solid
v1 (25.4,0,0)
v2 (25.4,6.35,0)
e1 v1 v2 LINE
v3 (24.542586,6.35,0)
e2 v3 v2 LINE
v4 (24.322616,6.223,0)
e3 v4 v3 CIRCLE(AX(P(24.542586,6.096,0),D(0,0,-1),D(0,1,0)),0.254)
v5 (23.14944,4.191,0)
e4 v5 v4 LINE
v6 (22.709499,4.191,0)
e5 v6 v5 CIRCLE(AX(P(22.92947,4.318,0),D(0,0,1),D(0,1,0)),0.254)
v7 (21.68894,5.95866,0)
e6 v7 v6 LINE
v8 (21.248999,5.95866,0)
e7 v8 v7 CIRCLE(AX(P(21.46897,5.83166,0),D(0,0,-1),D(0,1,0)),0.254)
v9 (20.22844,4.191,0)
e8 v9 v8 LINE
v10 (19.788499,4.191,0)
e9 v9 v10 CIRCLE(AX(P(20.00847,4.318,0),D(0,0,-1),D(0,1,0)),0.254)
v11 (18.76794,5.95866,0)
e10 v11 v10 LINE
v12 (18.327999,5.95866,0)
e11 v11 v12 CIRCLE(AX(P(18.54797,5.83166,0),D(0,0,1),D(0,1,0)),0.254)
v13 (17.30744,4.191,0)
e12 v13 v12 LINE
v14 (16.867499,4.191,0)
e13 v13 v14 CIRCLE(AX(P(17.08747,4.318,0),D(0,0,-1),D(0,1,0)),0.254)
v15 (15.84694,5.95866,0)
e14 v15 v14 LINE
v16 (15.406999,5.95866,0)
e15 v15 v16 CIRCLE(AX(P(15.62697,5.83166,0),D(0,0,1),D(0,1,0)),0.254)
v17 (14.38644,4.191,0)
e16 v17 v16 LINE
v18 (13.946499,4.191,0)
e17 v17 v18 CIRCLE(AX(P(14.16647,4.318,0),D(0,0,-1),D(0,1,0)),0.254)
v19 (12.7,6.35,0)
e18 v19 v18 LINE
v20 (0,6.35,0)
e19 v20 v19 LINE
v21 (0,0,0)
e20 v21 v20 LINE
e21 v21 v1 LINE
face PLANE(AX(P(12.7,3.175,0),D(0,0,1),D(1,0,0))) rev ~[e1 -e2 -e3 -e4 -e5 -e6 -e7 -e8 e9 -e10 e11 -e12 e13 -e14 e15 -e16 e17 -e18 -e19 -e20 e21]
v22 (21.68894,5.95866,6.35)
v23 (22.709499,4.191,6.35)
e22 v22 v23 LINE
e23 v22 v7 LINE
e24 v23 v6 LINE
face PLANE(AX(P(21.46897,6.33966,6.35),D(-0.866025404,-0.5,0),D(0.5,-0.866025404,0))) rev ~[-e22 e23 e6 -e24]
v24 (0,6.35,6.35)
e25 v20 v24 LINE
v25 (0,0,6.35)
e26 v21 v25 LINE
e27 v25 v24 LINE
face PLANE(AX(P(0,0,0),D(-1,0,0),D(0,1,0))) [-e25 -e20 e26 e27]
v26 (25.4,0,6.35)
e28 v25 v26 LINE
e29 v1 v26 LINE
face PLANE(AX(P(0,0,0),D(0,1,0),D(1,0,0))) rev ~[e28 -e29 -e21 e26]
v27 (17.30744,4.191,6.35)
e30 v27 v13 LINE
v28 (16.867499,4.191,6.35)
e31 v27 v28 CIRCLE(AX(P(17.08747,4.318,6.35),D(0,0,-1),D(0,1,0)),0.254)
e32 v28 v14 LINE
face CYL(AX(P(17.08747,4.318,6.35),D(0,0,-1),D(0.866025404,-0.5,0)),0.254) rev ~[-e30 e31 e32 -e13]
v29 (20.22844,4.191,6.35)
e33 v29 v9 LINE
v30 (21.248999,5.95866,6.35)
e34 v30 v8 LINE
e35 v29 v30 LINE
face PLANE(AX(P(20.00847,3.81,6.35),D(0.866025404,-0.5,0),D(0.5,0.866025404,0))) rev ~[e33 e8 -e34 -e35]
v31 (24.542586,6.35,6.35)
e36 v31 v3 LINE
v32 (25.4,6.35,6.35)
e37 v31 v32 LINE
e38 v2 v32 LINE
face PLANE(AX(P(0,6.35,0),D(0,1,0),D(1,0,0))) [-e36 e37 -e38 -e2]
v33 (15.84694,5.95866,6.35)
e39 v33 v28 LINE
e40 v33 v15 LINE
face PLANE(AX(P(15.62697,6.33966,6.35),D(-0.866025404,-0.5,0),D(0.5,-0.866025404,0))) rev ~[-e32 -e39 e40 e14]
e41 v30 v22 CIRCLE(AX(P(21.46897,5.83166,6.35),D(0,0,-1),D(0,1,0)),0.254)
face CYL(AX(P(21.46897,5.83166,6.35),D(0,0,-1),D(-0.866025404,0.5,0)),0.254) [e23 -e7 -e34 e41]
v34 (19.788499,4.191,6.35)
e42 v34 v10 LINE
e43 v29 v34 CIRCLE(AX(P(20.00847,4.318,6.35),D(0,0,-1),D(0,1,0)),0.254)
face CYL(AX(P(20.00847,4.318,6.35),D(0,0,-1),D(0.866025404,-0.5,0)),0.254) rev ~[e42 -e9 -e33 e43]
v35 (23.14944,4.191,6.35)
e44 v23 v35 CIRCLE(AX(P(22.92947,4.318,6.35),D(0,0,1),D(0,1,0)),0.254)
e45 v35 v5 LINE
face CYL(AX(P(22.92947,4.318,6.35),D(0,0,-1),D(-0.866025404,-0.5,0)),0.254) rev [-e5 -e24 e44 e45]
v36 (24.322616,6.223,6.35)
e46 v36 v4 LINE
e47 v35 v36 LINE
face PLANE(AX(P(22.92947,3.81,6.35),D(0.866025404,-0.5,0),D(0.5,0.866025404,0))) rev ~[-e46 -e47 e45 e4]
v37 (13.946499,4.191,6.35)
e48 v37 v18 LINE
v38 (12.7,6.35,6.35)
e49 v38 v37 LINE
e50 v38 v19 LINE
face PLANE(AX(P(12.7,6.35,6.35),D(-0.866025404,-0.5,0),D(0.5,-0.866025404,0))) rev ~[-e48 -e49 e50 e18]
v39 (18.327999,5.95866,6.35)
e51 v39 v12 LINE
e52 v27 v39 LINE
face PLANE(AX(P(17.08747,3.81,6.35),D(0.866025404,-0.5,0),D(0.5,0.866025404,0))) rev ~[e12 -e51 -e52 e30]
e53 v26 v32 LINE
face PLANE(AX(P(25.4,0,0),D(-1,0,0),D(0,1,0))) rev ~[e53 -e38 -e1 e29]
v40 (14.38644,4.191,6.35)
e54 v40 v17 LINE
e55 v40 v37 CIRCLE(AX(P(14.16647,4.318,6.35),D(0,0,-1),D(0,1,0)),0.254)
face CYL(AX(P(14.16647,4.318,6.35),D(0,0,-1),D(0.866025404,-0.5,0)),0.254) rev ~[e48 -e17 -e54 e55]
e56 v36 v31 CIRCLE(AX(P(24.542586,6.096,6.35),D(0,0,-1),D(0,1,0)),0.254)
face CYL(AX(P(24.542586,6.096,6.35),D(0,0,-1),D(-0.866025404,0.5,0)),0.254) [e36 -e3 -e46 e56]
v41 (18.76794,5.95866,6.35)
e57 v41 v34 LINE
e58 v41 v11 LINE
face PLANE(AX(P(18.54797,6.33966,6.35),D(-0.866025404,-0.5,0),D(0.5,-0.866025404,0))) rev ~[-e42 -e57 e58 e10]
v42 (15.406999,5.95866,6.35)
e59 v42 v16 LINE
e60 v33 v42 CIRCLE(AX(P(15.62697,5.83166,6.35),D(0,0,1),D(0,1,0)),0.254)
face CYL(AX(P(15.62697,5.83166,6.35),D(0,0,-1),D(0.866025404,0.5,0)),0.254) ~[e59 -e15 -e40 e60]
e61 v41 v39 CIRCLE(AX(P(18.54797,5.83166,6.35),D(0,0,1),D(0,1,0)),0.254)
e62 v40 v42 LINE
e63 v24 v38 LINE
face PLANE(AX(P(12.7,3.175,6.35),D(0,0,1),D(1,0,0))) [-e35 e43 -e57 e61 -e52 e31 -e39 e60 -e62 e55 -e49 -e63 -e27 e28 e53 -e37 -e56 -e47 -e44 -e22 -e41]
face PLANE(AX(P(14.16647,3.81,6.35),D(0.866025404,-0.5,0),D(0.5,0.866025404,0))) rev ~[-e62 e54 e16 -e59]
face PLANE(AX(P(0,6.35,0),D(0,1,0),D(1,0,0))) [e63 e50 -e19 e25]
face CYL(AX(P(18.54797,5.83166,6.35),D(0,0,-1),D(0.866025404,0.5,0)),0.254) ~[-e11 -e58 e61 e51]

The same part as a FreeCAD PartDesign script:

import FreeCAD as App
import Part
import Sketcher
from FreeCAD import Vector
Q = App.Units.Quantity


def edges_at(feature, points):
    """Names of the edges that pass closest to the given points."""
    edges = feature.Shape.Edges
    near = lambda p: min(range(len(edges)), key=lambda i: edges[i].distToShape(Part.Vertex(*p))[0])
    return sorted({f"Edge{near(p) + 1}" for p in points})


def add_polygon(sketch, points):
    """Adds a closed chain of lines whose ends are joined by coincident constraints."""
    first, n = sketch.GeometryCount, len(points)
    for a, b in zip(points, points[1:] + points[:1]):
        sketch.addGeometry(Part.LineSegment(App.Vector(*a, 0), App.Vector(*b, 0)), False)
    for i in range(n):
        sketch.addConstraint(Sketcher.Constraint("Coincident", first + i, 2, first + (i + 1) % n, 1))

doc = App.newDocument("Part")
params = doc.addObject("Spreadsheet::Sheet", "Params")
for row, (alias, value) in enumerate([
    ("sketch1_width", "1 in"),
    ("sketch1_height", "0.25 in"),
    ("pad1_length", "0.25 in"),
    ("pocket1_length", "1 in"),
    ("fillet_radius", "0.01 in"),
    ("fillet2_radius", "0.01 in"),
], start=1):
    params.set(f"A{row}", alias)
    params.set(f"B{row}", "=" + value)
    params.setAlias(f"B{row}", alias)

body = doc.addObject("PartDesign::Body", "Body")

sketch1 = body.newObject("Sketcher::SketchObject", "Sketch")
sketch1.AttachmentSupport = (doc.getObject("XY_Plane"), [""])
sketch1.MapMode = "FlatFace"
add_polygon(sketch1, [(0, 6), (0, 0), (25, 0), (25, 6)])
sketch1.addConstraint([
    Sketcher.Constraint("Vertical", 0),
    Sketcher.Constraint("Horizontal", 1),
    Sketcher.Constraint("Vertical", 2),
    Sketcher.Constraint("Horizontal", 3),
    Sketcher.Constraint("Coincident", 0, 2, -1, 1),
    Sketcher.Constraint("DistanceX", 1, 1, 1, 2, Q("1 in")),
    Sketcher.Constraint("DistanceY", 0, 2, 0, 1, Q("0.25 in")),
])
sketch1.setExpression("Constraints[9]", "Params.sketch1_width")
sketch1.setExpression("Constraints[10]", "Params.sketch1_height")
pad1 = body.newObject("PartDesign::Pad", "Pad")
pad1.Profile = sketch1
pad1.setExpression("Length", "Params.pad1_length")

sketch2 = body.newObject("Sketcher::SketchObject", "Sketch001")
sketch2.AttachmentSupport = (doc.getObject("XY_Plane"), [""])
sketch2.MapMode = "FlatFace"
sketch2.AttachmentOffset = App.Placement(Vector(0, 0, 0.25 * 25.4), App.Rotation())
add_polygon(sketch2, [(12.7, 6.3), (14.2, 3.8), (15.6, 6.3), (17.1, 3.8), (18.5, 6.3), (20, 3.8), (21.5, 6.3), (22.9, 3.8), (24.4, 6.3)])
sketch2.addConstraint([
    Sketcher.Constraint("Horizontal", 8),
    Sketcher.Constraint("Parallel", 0, 2),
    Sketcher.Constraint("Parallel", 1, 3),
    Sketcher.Constraint("Parallel", 2, 4),
    Sketcher.Constraint("Parallel", 3, 5),
    Sketcher.Constraint("Parallel", 4, 6),
    Sketcher.Constraint("Parallel", 5, 7),
    Sketcher.Constraint("Horizontal", 0, 2, 2, 2),
    Sketcher.Constraint("Horizontal", 1, 2, 3, 2),
    Sketcher.Constraint("Horizontal", 2, 2, 4, 2),
    Sketcher.Constraint("Horizontal", 3, 2, 5, 2),
    Sketcher.Constraint("Horizontal", 4, 2, 6, 2),
    Sketcher.Constraint("Equal", 1, 2),
    Sketcher.Constraint("Angle", 0, Q("-60 deg")),
    Sketcher.Constraint("DistanceX", -1, 1, 8, 2, Q("0.5 in")),
    Sketcher.Constraint("DistanceY", 6, 2, 7, 2, Q("0.1 in")),
    Sketcher.Constraint("DistanceY", -1, 1, 0, 2, Q("0.15 in")),
    Sketcher.Constraint("DistanceX", 0, 2, 4, 2, Q("0.23 in")),
])
pocket1 = body.newObject("PartDesign::Pocket", "Pocket")
pocket1.Profile = sketch2
pocket1.setExpression("Length", "Params.pocket1_length")
doc.recompute()

fillet = body.newObject("PartDesign::Fillet", "Fillet")
fillet.Base = (pocket1, edges_at(pocket1, [(21.469, 6.34, 3.175)]))
fillet.setExpression("Radius", "Params.fillet_radius")
doc.recompute()

fillet2 = body.newObject("PartDesign::Fillet", "Fillet001")
fillet2.Base = (fillet, edges_at(fillet, [
    (24.396, 6.35, 3.175),
    (22.929, 3.81, 3.175),
    (20.008, 3.81, 3.175),
    (18.548, 6.34, 3.175),
    (17.087, 3.81, 3.175),
    (15.627, 6.34, 3.175),
    (14.166, 3.81, 3.175),
]))
fillet2.setExpression("Radius", "Params.fillet2_radius")

doc.recompute()
